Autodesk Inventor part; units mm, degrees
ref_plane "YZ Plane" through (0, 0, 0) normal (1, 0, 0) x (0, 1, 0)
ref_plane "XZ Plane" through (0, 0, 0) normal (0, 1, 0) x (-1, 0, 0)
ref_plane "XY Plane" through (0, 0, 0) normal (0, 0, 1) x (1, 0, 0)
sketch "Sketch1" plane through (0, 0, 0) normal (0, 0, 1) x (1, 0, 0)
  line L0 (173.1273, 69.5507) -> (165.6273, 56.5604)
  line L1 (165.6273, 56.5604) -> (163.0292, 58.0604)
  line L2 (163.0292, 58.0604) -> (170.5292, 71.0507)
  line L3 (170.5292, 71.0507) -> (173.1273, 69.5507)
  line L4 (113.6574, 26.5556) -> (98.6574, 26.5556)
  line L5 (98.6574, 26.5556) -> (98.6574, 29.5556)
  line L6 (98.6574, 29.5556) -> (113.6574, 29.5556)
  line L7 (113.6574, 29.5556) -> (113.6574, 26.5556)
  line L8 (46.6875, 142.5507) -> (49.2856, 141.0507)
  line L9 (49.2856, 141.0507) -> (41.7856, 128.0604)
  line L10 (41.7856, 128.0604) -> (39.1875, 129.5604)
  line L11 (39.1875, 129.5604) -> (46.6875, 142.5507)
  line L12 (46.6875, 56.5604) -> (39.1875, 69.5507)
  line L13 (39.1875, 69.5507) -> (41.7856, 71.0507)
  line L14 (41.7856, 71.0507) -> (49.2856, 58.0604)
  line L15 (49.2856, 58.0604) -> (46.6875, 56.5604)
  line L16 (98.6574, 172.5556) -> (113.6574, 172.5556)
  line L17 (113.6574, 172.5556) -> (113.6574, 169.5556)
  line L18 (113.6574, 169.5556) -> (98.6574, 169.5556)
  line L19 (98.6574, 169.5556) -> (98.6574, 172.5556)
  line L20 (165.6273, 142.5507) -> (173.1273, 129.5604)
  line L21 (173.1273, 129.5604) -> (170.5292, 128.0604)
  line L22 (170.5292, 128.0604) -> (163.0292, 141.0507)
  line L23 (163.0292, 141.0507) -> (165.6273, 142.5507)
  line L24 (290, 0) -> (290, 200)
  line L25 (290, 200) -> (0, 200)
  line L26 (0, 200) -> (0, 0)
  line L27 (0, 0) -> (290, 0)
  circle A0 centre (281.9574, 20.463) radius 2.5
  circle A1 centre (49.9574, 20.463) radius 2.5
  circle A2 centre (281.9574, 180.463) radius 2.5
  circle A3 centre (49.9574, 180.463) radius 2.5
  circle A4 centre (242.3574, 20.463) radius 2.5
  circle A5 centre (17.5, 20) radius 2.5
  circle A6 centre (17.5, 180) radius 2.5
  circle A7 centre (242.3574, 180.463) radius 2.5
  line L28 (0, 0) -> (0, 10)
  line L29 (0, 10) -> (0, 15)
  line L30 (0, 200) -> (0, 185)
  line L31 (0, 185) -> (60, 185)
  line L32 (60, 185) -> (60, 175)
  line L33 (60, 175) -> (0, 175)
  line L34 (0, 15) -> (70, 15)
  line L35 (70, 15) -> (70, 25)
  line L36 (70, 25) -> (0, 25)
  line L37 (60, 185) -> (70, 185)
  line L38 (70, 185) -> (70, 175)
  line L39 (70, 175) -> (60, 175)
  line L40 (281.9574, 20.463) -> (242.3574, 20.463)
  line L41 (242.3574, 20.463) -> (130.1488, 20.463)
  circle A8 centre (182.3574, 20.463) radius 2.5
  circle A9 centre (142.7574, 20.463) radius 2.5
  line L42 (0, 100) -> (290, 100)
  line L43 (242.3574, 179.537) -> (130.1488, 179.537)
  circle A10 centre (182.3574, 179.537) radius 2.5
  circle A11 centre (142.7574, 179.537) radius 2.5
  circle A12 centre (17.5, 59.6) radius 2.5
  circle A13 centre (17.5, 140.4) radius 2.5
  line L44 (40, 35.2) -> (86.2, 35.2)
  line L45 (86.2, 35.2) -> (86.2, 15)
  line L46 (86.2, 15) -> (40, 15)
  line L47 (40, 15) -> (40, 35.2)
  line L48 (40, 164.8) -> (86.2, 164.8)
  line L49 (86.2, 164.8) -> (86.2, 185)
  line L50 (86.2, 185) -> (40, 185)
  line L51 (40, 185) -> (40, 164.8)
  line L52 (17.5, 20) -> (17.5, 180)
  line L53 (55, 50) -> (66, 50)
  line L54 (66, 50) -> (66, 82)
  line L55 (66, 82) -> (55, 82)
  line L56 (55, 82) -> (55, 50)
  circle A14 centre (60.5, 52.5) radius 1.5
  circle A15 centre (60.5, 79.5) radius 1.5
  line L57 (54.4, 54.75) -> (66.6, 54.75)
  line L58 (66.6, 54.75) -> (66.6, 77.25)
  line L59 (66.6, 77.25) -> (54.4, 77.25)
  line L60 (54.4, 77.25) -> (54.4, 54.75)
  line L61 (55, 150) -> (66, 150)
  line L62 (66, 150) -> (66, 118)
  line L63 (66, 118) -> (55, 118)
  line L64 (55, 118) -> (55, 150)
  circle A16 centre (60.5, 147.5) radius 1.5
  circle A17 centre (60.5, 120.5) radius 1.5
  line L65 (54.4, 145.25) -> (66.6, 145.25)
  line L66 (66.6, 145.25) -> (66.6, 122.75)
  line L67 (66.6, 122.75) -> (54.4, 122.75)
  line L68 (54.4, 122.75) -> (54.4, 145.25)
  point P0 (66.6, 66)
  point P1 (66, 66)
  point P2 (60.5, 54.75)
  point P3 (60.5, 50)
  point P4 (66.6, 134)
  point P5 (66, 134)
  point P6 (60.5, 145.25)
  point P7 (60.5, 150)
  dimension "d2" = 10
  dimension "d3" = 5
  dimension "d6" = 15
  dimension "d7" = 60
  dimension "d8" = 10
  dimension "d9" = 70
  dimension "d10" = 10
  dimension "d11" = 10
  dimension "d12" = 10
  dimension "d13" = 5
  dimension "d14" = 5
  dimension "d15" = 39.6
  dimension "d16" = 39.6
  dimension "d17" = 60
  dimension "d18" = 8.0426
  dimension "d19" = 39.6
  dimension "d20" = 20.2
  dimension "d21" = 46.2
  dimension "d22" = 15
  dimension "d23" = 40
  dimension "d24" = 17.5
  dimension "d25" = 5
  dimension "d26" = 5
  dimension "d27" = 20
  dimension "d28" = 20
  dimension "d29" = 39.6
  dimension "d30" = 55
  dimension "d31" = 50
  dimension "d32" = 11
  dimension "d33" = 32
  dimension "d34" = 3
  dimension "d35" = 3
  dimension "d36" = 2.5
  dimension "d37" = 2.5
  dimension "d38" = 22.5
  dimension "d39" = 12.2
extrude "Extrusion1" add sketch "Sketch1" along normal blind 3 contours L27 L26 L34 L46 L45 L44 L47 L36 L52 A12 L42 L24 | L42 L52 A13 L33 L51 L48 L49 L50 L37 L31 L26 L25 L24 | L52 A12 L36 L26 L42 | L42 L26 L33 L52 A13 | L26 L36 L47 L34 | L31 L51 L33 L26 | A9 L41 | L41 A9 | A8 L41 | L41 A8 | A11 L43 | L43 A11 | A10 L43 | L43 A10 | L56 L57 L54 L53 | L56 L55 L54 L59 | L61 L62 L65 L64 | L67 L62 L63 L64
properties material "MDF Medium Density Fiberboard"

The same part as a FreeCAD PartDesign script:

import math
import FreeCAD as App
import Part
import Sketcher
from FreeCAD import Vector
Q = App.Units.Quantity


def add_polygon(sketch, points):
    """Adds a closed chain of lines whose ends are joined by coincident constraints."""
    first, n = sketch.GeometryCount, len(points)
    for a, b in zip(points, points[1:] + points[:1]):
        sketch.addGeometry(Part.LineSegment(App.Vector(*a, 0), App.Vector(*b, 0)), False)
    for i in range(n):
        sketch.addConstraint(Sketcher.Constraint("Coincident", first + i, 2, first + (i + 1) % n, 1))

doc = App.newDocument("Part")
body = doc.addObject("PartDesign::Body", "Body")

sketch1 = body.newObject("Sketcher::SketchObject", "Sketch")
sketch1.AttachmentSupport = (doc.getObject("XY_Plane"), [""])
sketch1.MapMode = "FlatFace"
add_polygon(sketch1, [(0, 0), (290, 0), (290, 200), (0, 200)])
add_polygon(sketch1, [(40, 15), (40, 35.2), (86.2, 35.2), (86.2, 15)])
sketch1.addGeometry(Part.Circle(Vector(17.5, 59.6, 0), Vector(0, 0, 1), 2.5), False)
add_polygon(sketch1, [(113.6574, 29.5556), (113.6574, 26.5556), (98.6574, 26.5556), (98.6574, 29.5556)])
add_polygon(sketch1, [(49.2856, 58.0604), (46.6875, 56.5604), (39.1875, 69.5507), (41.7856, 71.0507)])
add_polygon(sketch1, [(66.6, 54.75), (54.4, 54.75), (54.4, 77.25), (66.6, 77.25)])
sketch1.addGeometry(Part.ArcOfCircle(Part.Circle(Vector(242.3574, 20.463, 0), Vector(0, 0, 1), 2.5), math.radians(0), math.radians(180)), False)
sketch1.addGeometry(Part.ArcOfCircle(Part.Circle(Vector(242.3574, 20.463, 0), Vector(0, 0, 1), 2.5), math.radians(180), math.radians(360)), False)
sketch1.addGeometry(Part.Circle(Vector(281.9574, 20.463, 0), Vector(0, 0, 1), 2.5), False)
add_polygon(sketch1, [(170.5292, 71.0507), (173.1273, 69.5507), (165.6273, 56.5604), (163.0292, 58.0604)])
sketch1.addGeometry(Part.Circle(Vector(17.5, 20, 0), Vector(0, 0, 1), 2.5), False)
sketch1.addGeometry(Part.Circle(Vector(17.5, 140.4, 0), Vector(0, 0, 1), 2.5), False)
add_polygon(sketch1, [(40, 164.8), (40, 185), (86.2, 185), (86.2, 164.8)])
add_polygon(sketch1, [(39.1875, 129.5604), (46.6875, 142.5507), (49.2856, 141.0507), (41.7856, 128.0604)])
add_polygon(sketch1, [(54.4, 145.25), (66.6, 145.25), (66.6, 122.75), (54.4, 122.75)])
add_polygon(sketch1, [(98.6574, 169.5556), (98.6574, 172.5556), (113.6574, 172.5556), (113.6574, 169.5556)])
add_polygon(sketch1, [(163.0292, 141.0507), (165.6273, 142.5507), (173.1273, 129.5604), (170.5292, 128.0604)])
sketch1.addGeometry(Part.Circle(Vector(242.3574, 180.463, 0), Vector(0, 0, 1), 2.5), False)
sketch1.addGeometry(Part.Circle(Vector(281.9574, 180.463, 0), Vector(0, 0, 1), 2.5), False)
sketch1.addGeometry(Part.Circle(Vector(60.5, 52.5, 0), Vector(0, 0, 1), 1.5), False)
sketch1.addGeometry(Part.Circle(Vector(60.5, 79.5, 0), Vector(0, 0, 1), 1.5), False)
sketch1.addGeometry(Part.Circle(Vector(17.5, 180, 0), Vector(0, 0, 1), 2.5), False)
sketch1.addGeometry(Part.Circle(Vector(60.5, 147.5, 0), Vector(0, 0, 1), 1.5), False)
sketch1.addGeometry(Part.Circle(Vector(60.5, 120.5, 0), Vector(0, 0, 1), 1.5), False)
sketch1.addConstraint(Sketcher.Constraint("Tangent", 21, 1, 22, 2))
sketch1.addConstraint(Sketcher.Constraint("Coincident", 22, 1, 21, 2))
sketch1.addConstraint(Sketcher.Constraint("Horizontal", 0))
sketch1.addConstraint(Sketcher.Constraint("Vertical", 1))
sketch1.addConstraint(Sketcher.Constraint("Horizontal", 2))
sketch1.addConstraint(Sketcher.Constraint("Vertical", 3))
sketch1.addConstraint(Sketcher.Constraint("Vertical", 4))
sketch1.addConstraint(Sketcher.Constraint("Horizontal", 5))
sketch1.addConstraint(Sketcher.Constraint("Vertical", 6))
sketch1.addConstraint(Sketcher.Constraint("Horizontal", 7))
sketch1.addConstraint(Sketcher.Constraint("Vertical", 9))
sketch1.addConstraint(Sketcher.Constraint("Horizontal", 10))
sketch1.addConstraint(Sketcher.Constraint("Vertical", 11))
sketch1.addConstraint(Sketcher.Constraint("Horizontal", 12))
sketch1.addConstraint(Sketcher.Constraint("Horizontal", 17))
sketch1.addConstraint(Sketcher.Constraint("Vertical", 18))
sketch1.addConstraint(Sketcher.Constraint("Horizontal", 19))
sketch1.addConstraint(Sketcher.Constraint("Vertical", 20))
sketch1.addConstraint(Sketcher.Constraint("Vertical", 30))
sketch1.addConstraint(Sketcher.Constraint("Horizontal", 31))
sketch1.addConstraint(Sketcher.Constraint("Vertical", 32))
sketch1.addConstraint(Sketcher.Constraint("Horizontal", 33))
sketch1.addConstraint(Sketcher.Constraint("Horizontal", 38))
sketch1.addConstraint(Sketcher.Constraint("Vertical", 39))
sketch1.addConstraint(Sketcher.Constraint("Horizontal", 40))
sketch1.addConstraint(Sketcher.Constraint("Vertical", 41))
sketch1.addConstraint(Sketcher.Constraint("Vertical", 42))
sketch1.addConstraint(Sketcher.Constraint("Horizontal", 43))
sketch1.addConstraint(Sketcher.Constraint("Vertical", 44))
sketch1.addConstraint(Sketcher.Constraint("Horizontal", 45))
sketch1.addConstraint(Sketcher.Constraint("Coincident", 3, 2, -1, 1))
sketch1.addConstraint(Sketcher.Constraint("Equal", 8, 21))
sketch1.addConstraint(Sketcher.Constraint("Equal", 22, 23))
sketch1.addConstraint(Sketcher.Constraint("Equal", 23, 28))
sketch1.addConstraint(Sketcher.Constraint("Equal", 28, 29))
sketch1.addConstraint(Sketcher.Constraint("Equal", 29, 50))
sketch1.addConstraint(Sketcher.Constraint("Equal", 50, 51))
sketch1.addConstraint(Sketcher.Constraint("Equal", 52, 53))
sketch1.addConstraint(Sketcher.Constraint("Equal", 51, 54))
sketch1.addConstraint(Sketcher.Constraint("Equal", 53, 55))
sketch1.addConstraint(Sketcher.Constraint("Equal", 55, 56))
sketch1.addConstraint(Sketcher.Constraint("Perpendicular", 13, 14))
sketch1.addConstraint(Sketcher.Constraint("Perpendicular", 14, 15))
sketch1.addConstraint(Sketcher.Constraint("Perpendicular", 15, 16))
sketch1.addConstraint(Sketcher.Constraint("Perpendicular", 24, 25))
sketch1.addConstraint(Sketcher.Constraint("Perpendicular", 25, 26))
sketch1.addConstraint(Sketcher.Constraint("Perpendicular", 26, 27))
sketch1.addConstraint(Sketcher.Constraint("Parallel", 27, 34))
sketch1.addConstraint(Sketcher.Constraint("Perpendicular", 34, 35))
sketch1.addConstraint(Sketcher.Constraint("Perpendicular", 35, 36))
sketch1.addConstraint(Sketcher.Constraint("Perpendicular", 36, 37))
sketch1.addConstraint(Sketcher.Constraint("Perpendicular", 16, 46))
sketch1.addConstraint(Sketcher.Constraint("Perpendicular", 46, 47))
sketch1.addConstraint(Sketcher.Constraint("Perpendicular", 47, 48))
sketch1.addConstraint(Sketcher.Constraint("Perpendicular", 48, 49))
sketch1.addConstraint(Sketcher.Constraint("Horizontal", 22, 3, 23, 3))
sketch1.addConstraint(Sketcher.Constraint("Horizontal", 50, 3, 51, 3))
sketch1.addConstraint(Sketcher.Constraint("Horizontal", 23, 3, 21, 1))
sketch1.addConstraint(Sketcher.Constraint("Horizontal", 21, 1, 22, 1))
sketch1.addConstraint(Sketcher.Constraint("Horizontal", 14, 2, 24, 2))
sketch1.addConstraint(Sketcher.Constraint("Horizontal", 13, 2, 25, 2))
sketch1.addConstraint(Sketcher.Constraint("Horizontal", 16, 2, 26, 2))
sketch1.addConstraint(Sketcher.Constraint("Horizontal", 34, 2, 46, 2))
sketch1.addConstraint(Sketcher.Constraint("Horizontal", 37, 2, 47, 2))
sketch1.addConstraint(Sketcher.Constraint("Horizontal", 36, 2, 48, 2))
sketch1.addConstraint(Sketcher.Constraint("Vertical", 8, 3, 28, 3))
sketch1.addConstraint(Sketcher.Constraint("Vertical", 28, 3, 29, 3))
sketch1.addConstraint(Sketcher.Constraint("Vertical", 22, 3, 50, 3))
sketch1.addConstraint(Sketcher.Constraint("Vertical", 23, 3, 51, 3))
sketch1.addConstraint(Sketcher.Constraint("Vertical", 52, 3, 53, 3))
sketch1.addConstraint(Sketcher.Constraint("Vertical", 29, 3, 54, 3))
sketch1.addConstraint(Sketcher.Constraint("Vertical", 53, 3, 55, 3))
sketch1.addConstraint(Sketcher.Constraint("Vertical", 55, 3, 56, 3))
sketch1.addConstraint(Sketcher.Constraint("Vertical", 7, 2, 30, 2))
sketch1.addConstraint(Sketcher.Constraint("Vertical", 6, 2, 31, 2))
sketch1.addConstraint(Sketcher.Constraint("Vertical", 13, 2, 34, 2))
sketch1.addConstraint(Sketcher.Constraint("Vertical", 16, 2, 35, 2))
sketch1.addConstraint(Sketcher.Constraint("Vertical", 15, 2, 36, 2))
sketch1.addConstraint(Sketcher.Constraint("Vertical", 20, 2, 38, 2))
sketch1.addConstraint(Sketcher.Constraint("Vertical", 18, 2, 40, 2))
sketch1.addConstraint(Sketcher.Constraint("Vertical", 11, 2, 42, 2))
sketch1.addConstraint(Sketcher.Constraint("Vertical", 12, 2, 43, 2))
sketch1.addConstraint(Sketcher.Constraint("Vertical", 25, 2, 46, 2))
sketch1.addConstraint(Sketcher.Constraint("Vertical", 24, 2, 47, 2))
sketch1.addConstraint(Sketcher.Constraint("Equal", 6, 30))
sketch1.addConstraint(Sketcher.Constraint("Equal", 20, 39))
sketch1.addConstraint(Sketcher.Constraint("Equal", 11, 42))
sketch1.addConstraint(Sketcher.Constraint("Diameter", 8, 5.0))
sketch1.addConstraint(Sketcher.Constraint("Diameter", 52, 3.0))
sketch1.addConstraint(Sketcher.Constraint("DistanceX", 10, 2, 10, 1, 15.0))
sketch1.addConstraint(Sketcher.Constraint("DistanceY", 9, 2, 9, 1, 3.0))
sketch1.addConstraint(Sketcher.Constraint("Angle", 16, Q("-59.9998 deg")))
sketch1.addConstraint(Sketcher.Constraint("Distance", 13, 3.0))
sketch1.addConstraint(Sketcher.Constraint("Distance", 14, 15.0))
sketch1.addConstraint(Sketcher.Constraint("DistanceX", 5, 1, 5, 2, 46.2))
sketch1.addConstraint(Sketcher.Constraint("DistanceX", 17, 2, 17, 1, 12.2))
sketch1.addConstraint(Sketcher.Constraint("DistanceY", 4, 1, 4, 2, 20.2))
sketch1.addConstraint(Sketcher.Constraint("DistanceY", 18, 1, 18, 2, 22.5))
sketch1.addConstraint(Sketcher.Constraint("DistanceY", -1, 1, 28, 3, 20.0))
sketch1.addConstraint(Sketcher.Constraint("DistanceX", -1, 1, 4, 2, 40.0))
sketch1.addConstraint(Sketcher.Constraint("DistanceY", -1, 1, 6, 2, 15.0))
sketch1.addConstraint(Sketcher.Constraint("DistanceY", 54, 3, 2, 2, 20.0))
sketch1.addConstraint(Sketcher.Constraint("DistanceY", 54, 3, 30, 2, 5.0))
sketch1.addConstraint(Sketcher.Constraint("DistanceY", 26, 2, 48, 2, 70.0))
sketch1.addConstraint(Sketcher.Constraint("DistanceX", -1, 1, 8, 3, 17.5))
sketch1.addConstraint(Sketcher.Constraint("DistanceX", 21, 3, 23, 3, 39.6))
sketch1.addConstraint(Sketcher.Constraint("DistanceY", 28, 3, 8, 3, 39.6))
sketch1.addConstraint(Sketcher.Constraint("DistanceY", 29, 3, 54, 3, 39.6))
sketch1.addConstraint(Sketcher.Constraint("DistanceX", 0, 1, 0, 2, 290.0))
sketch1.addConstraint(Sketcher.Constraint("DistanceY", 1, 1, 1, 2, 200.0))
sketch1.addConstraint(Sketcher.Constraint("DistanceY", 21, 3, 50, 3, 160.0))
sketch1.addConstraint(Sketcher.Constraint("DistanceX", 8, 3, 52, 3, 43.0))
sketch1.addConstraint(Sketcher.Constraint("DistanceY", 52, 3, 53, 3, 27.0))
sketch1.addConstraint(Sketcher.Constraint("DistanceY", 53, 3, 55, 3, 68.0))
sketch1.addConstraint(Sketcher.Constraint("DistanceY", 56, 3, 55, 3, 27.0))
sketch1.addConstraint(Sketcher.Constraint("DistanceY", -1, 1, 52, 3, 52.5))
sketch1.addConstraint(Sketcher.Constraint("DistanceX", -1, 1, 17, 2, 54.4))
sketch1.addConstraint(Sketcher.Constraint("DistanceX", 23, 3, 0, 2, 8.0426))
sketch1.addConstraint(Sketcher.Constraint("DistanceX", 9, 2, 21, 1, 131.2))
sketch1.addConstraint(Sketcher.Constraint("DistanceY", -1, 1, 17, 2, 54.75))
sketch1.addConstraint(Sketcher.Constraint("DistanceY", -1, 1, 38, 2, 145.25))
sketch1.addConstraint(Sketcher.Constraint("DistanceX", 12, 2, 24, 2, 59.47))
sketch1.addConstraint(Sketcher.Constraint("DistanceY", -1, 1, 21, 3, 20.463))
sketch1.addConstraint(Sketcher.Constraint("DistanceY", 12, 2, 24, 2, 39.995))
sketch1.addConstraint(Sketcher.Constraint("DistanceY", 46, 2, 44, 2, 27.005))
sketch1.addConstraint(Sketcher.Constraint("DistanceY", -1, 1, 9, 2, 26.5556))
sketch1.addConstraint(Sketcher.Constraint("DistanceX", -1, 1, 13, 2, 46.6875))
pad1 = body.newObject("PartDesign::Pad", "Pad")
pad1.Profile = sketch1
pad1.Length = 3

doc.recompute()
